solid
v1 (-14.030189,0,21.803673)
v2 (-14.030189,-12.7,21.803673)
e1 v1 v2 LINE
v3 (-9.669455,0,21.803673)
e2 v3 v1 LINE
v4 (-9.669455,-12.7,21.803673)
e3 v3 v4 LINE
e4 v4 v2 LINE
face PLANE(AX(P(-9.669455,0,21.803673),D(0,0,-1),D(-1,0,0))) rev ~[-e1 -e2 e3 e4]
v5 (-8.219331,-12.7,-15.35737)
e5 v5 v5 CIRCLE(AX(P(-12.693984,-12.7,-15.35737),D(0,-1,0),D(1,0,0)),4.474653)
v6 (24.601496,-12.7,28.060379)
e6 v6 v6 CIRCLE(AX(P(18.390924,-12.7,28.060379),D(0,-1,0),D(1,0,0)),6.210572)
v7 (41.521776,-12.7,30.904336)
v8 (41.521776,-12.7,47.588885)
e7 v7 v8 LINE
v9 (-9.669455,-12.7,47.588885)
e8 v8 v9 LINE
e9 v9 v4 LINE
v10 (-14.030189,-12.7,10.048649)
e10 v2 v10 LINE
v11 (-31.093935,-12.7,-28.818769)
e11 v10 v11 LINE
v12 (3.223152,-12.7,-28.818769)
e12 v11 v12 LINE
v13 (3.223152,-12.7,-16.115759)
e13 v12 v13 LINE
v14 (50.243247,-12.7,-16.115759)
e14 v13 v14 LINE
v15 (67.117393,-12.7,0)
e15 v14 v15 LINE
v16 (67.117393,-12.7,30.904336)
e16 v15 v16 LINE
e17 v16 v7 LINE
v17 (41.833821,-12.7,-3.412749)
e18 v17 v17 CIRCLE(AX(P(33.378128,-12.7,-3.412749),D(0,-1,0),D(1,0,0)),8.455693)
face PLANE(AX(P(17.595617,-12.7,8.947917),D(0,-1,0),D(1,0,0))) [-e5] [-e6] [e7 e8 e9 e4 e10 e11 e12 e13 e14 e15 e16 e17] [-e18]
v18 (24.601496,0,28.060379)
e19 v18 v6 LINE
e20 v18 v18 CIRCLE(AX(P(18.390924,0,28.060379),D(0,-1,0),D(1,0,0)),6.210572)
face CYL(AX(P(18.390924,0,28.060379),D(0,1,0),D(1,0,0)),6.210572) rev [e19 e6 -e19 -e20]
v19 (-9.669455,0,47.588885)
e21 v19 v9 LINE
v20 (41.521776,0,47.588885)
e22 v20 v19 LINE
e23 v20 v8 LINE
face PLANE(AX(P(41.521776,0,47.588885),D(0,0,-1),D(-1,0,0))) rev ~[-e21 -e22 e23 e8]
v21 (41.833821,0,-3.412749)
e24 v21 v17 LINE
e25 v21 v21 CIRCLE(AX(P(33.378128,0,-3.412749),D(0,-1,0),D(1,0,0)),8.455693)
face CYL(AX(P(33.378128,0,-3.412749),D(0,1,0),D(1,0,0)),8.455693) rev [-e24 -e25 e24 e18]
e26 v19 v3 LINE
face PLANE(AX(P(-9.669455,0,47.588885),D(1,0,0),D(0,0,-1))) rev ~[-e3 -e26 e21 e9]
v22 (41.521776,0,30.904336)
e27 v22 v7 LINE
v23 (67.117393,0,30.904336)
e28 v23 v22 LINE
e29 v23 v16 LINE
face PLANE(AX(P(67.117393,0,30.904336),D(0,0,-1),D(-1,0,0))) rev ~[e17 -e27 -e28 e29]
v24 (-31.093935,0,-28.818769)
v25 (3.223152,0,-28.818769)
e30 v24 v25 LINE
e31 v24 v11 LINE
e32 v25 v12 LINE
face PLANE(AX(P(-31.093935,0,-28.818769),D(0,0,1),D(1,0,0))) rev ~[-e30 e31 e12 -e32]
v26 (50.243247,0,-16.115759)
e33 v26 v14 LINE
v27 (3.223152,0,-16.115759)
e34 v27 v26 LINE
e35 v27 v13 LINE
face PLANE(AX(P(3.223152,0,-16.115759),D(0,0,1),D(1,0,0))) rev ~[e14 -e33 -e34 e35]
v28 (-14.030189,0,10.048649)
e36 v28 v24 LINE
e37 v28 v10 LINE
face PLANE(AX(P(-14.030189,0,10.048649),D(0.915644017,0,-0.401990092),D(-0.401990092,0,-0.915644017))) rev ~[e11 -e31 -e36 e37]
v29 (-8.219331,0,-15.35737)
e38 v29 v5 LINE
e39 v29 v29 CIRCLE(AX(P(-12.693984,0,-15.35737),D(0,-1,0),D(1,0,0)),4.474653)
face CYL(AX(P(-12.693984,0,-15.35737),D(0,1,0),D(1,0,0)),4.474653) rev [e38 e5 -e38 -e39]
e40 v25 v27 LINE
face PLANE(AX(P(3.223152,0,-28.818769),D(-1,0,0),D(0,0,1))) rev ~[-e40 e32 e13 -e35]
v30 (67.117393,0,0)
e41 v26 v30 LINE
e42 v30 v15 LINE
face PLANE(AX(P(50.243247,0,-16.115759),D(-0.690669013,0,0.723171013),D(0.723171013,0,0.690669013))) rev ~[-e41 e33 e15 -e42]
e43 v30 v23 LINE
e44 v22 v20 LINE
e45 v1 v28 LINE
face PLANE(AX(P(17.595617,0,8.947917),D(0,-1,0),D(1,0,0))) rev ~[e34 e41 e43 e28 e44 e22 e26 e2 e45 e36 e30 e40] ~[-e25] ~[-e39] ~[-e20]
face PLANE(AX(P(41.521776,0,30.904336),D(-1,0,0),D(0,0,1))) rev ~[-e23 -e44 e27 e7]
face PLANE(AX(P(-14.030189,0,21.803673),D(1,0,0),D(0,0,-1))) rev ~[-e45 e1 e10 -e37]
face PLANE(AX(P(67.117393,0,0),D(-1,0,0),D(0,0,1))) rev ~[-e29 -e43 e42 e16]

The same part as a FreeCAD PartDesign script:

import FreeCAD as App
import Part
import Sketcher
Q = App.Units.Quantity

doc = App.newDocument("Part")
body = doc.addObject("PartDesign::Body", "Body")

# Sketch on XZ plane
sketch1 = body.newObject("Sketcher::SketchObject", "Sketch")
sketch1.AttachmentSupport = (doc.getObject("XZ_Plane"), [""])
sketch1.MapMode = "FlatFace"
sketch1.addGeometry(Part.LineSegment(App.Vector(41.521776, 47.588885, 0), App.Vector(-9.669455, 47.588885, 0)), False)
sketch1.addGeometry(Part.LineSegment(App.Vector(-9.669455, 47.588885, 0), App.Vector(-9.669455, 21.803673, 0)), False)
sketch1.addGeometry(Part.LineSegment(App.Vector(-9.669455, 21.803673, 0), App.Vector(-14.030189, 21.803673, 0)), False)
sketch1.addGeometry(Part.LineSegment(App.Vector(-14.030189, 21.803673, 0), App.Vector(-14.030189, 10.048649, 0)), False)
sketch1.addGeometry(Part.LineSegment(App.Vector(-14.030189, 10.048649, 0), App.Vector(-31.093935, -28.818769, 0)), False)
sketch1.addGeometry(Part.LineSegment(App.Vector(-31.093935, -28.818769, 0), App.Vector(3.223152, -28.818769, 0)), False)
sketch1.addGeometry(Part.LineSegment(App.Vector(3.223152, -28.818769, 0), App.Vector(3.223152, -16.115759, 0)), False)
sketch1.addGeometry(Part.LineSegment(App.Vector(3.223152, -16.115759, 0), App.Vector(50.243247, -16.115759, 0)), False)
sketch1.addGeometry(Part.LineSegment(App.Vector(50.243247, -16.115759, 0), App.Vector(67.117393, 0, 0)), False)
sketch1.addGeometry(Part.LineSegment(App.Vector(67.117393, 0, 0), App.Vector(67.117393, 30.904336, 0)), False)
sketch1.addGeometry(Part.LineSegment(App.Vector(67.117393, 30.904336, 0), App.Vector(41.521776, 30.904336, 0)), False)
sketch1.addGeometry(Part.LineSegment(App.Vector(41.521776, 30.904336, 0), App.Vector(41.521776, 47.588885, 0)), False)
sketch1.addGeometry(Part.Circle(App.Vector(-12.693984, -15.35737, 0), App.Vector(0, 0, 1), 4.474653), False)
sketch1.addGeometry(Part.Circle(App.Vector(33.378128, -3.412749, 0), App.Vector(0, 0, 1), 8.455693), False)
sketch1.addGeometry(Part.Circle(App.Vector(18.390924, 28.060379, 0), App.Vector(0, 0, 1), 6.210572), False)
sketch1.addConstraint(Sketcher.Constraint("Coincident", 0, 2, 1, 1))
sketch1.addConstraint(Sketcher.Constraint("Coincident", 1, 2, 2, 1))
sketch1.addConstraint(Sketcher.Constraint("Coincident", 2, 2, 3, 1))
sketch1.addConstraint(Sketcher.Constraint("Coincident", 3, 2, 4, 1))
sketch1.addConstraint(Sketcher.Constraint("Coincident", 4, 2, 5, 1))
sketch1.addConstraint(Sketcher.Constraint("Coincident", 5, 2, 6, 1))
sketch1.addConstraint(Sketcher.Constraint("Coincident", 6, 2, 7, 1))
sketch1.addConstraint(Sketcher.Constraint("Coincident", 7, 2, 8, 1))
sketch1.addConstraint(Sketcher.Constraint("Coincident", 8, 2, 9, 1))
sketch1.addConstraint(Sketcher.Constraint("Coincident", 9, 2, 10, 1))
sketch1.addConstraint(Sketcher.Constraint("Coincident", 10, 2, 11, 1))
sketch1.addConstraint(Sketcher.Constraint("Coincident", 11, 2, 0, 1))
sketch1.addConstraint(Sketcher.Constraint("Horizontal", 0))
sketch1.addConstraint(Sketcher.Constraint("Vertical", 1))
sketch1.addConstraint(Sketcher.Constraint("Horizontal", 2))
sketch1.addConstraint(Sketcher.Constraint("Vertical", 3))
sketch1.addConstraint(Sketcher.Constraint("Horizontal", 5))
sketch1.addConstraint(Sketcher.Constraint("Vertical", 6))
sketch1.addConstraint(Sketcher.Constraint("Horizontal", 7))
sketch1.addConstraint(Sketcher.Constraint("Vertical", 9))
sketch1.addConstraint(Sketcher.Constraint("Horizontal", 10))
sketch1.addConstraint(Sketcher.Constraint("Vertical", 11))
sketch1.addConstraint(Sketcher.Constraint("PointOnObject", 8, 2, -1))
sketch1.addConstraint(Sketcher.Constraint("Diameter", 12, 8.949306))
sketch1.addConstraint(Sketcher.Constraint("Diameter", 13, 16.911386))
sketch1.addConstraint(Sketcher.Constraint("Diameter", 14, 12.421144))
sketch1.addConstraint(Sketcher.Constraint("DistanceX", 0, 2, 0, 1, 51.191231))
sketch1.addConstraint(Sketcher.Constraint("DistanceY", 1, 2, 1, 1, 25.785212))
sketch1.addConstraint(Sketcher.Constraint("DistanceY", 6, 1, 6, 2, 12.70301))
sketch1.addConstraint(Sketcher.Constraint("DistanceY", 11, 1, 11, 2, 16.684549))
sketch1.addConstraint(Sketcher.Constraint("DistanceY", 4, 2, 12, 3, 13.461399))
sketch1.addConstraint(Sketcher.Constraint("Distance", 8, 23.333549))
sketch1.addConstraint(Sketcher.Constraint("DistanceX", 2, 2, 2, 1, 4.360734))
sketch1.addConstraint(Sketcher.Constraint("DistanceX", 5, 1, 5, 2, 34.317087))
sketch1.addConstraint(Sketcher.Constraint("DistanceX", 7, 1, 7, 2, 47.020095))
sketch1.addConstraint(Sketcher.Constraint("DistanceX", 10, 2, 10, 1, 25.595617))
sketch1.addConstraint(Sketcher.Constraint("DistanceY", 3, 2, 3, 1, 11.755024))
sketch1.addConstraint(Sketcher.Constraint("DistanceY", 9, 1, 9, 2, 30.904336))
sketch1.addConstraint(Sketcher.Constraint("DistanceY", 12, 3, -1, 1, 15.35737))
sketch1.addConstraint(Sketcher.Constraint("DistanceY", 13, 3, -1, 1, 3.412749))
sketch1.addConstraint(Sketcher.Constraint("DistanceY", -1, 1, 14, 3, 28.060379))
sketch1.addConstraint(Sketcher.Constraint("DistanceX", 2, 2, -1, 1, 14.030189))
sketch1.addConstraint(Sketcher.Constraint("DistanceX", 12, 3, 13, 3, 46.072112))
sketch1.addConstraint(Sketcher.Constraint("DistanceX", 0, 2, 14, 3, 28.060379))
sketch1.addConstraint(Sketcher.Constraint("DistanceX", 12, 3, 0, 2, 3.024529))
pad1 = body.newObject("PartDesign::Pad", "Pad")
pad1.Profile = sketch1
pad1.Length = Q("0.5 in")

# Sketch on XZ plane
sketch2 = body.newObject("Sketcher::SketchObject", "Sketch001")
sketch2.AttachmentSupport = (doc.getObject("XZ_Plane"), [""])
sketch2.MapMode = "FlatFace"
sketch2.addGeometry(Part.LineSegment(App.Vector(41.521776, 47.588885, 0), App.Vector(-9.669455, 47.588885, 0)), False)
sketch2.addGeometry(Part.LineSegment(App.Vector(-9.669455, 47.588885, 0), App.Vector(-9.669455, 21.803673, 0)), False)
sketch2.addGeometry(Part.LineSegment(App.Vector(-9.669455, 21.803673, 0), App.Vector(-14.030189, 21.803673, 0)), False)
sketch2.addGeometry(Part.LineSegment(App.Vector(-14.030189, 21.803673, 0), App.Vector(-14.030189, 10.048649, 0)), False)
sketch2.addGeometry(Part.LineSegment(App.Vector(-14.030189, 10.048649, 0), App.Vector(-31.093935, -28.818769, 0)), False)
sketch2.addGeometry(Part.LineSegment(App.Vector(-31.093935, -28.818769, 0), App.Vector(3.223152, -28.818769, 0)), False)
sketch2.addGeometry(Part.LineSegment(App.Vector(3.223152, -28.818769, 0), App.Vector(3.223152, -16.115759, 0)), False)
sketch2.addGeometry(Part.LineSegment(App.Vector(3.223152, -16.115759, 0), App.Vector(50.243247, -16.115759, 0)), False)
sketch2.addGeometry(Part.LineSegment(App.Vector(50.243247, -16.115759, 0), App.Vector(67.117393, 0, 0)), False)
sketch2.addGeometry(Part.LineSegment(App.Vector(67.117393, 0, 0), App.Vector(67.117393, 30.904336, 0)), False)
sketch2.addGeometry(Part.LineSegment(App.Vector(67.117393, 30.904336, 0), App.Vector(41.521776, 30.904336, 0)), False)
sketch2.addGeometry(Part.LineSegment(App.Vector(41.521776, 30.904336, 0), App.Vector(41.521776, 47.588885, 0)), False)
sketch2.addGeometry(Part.Circle(App.Vector(-12.693984, -15.35737, 0), App.Vector(0, 0, 1), 4.474653), False)
sketch2.addGeometry(Part.Circle(App.Vector(33.378128, -3.412749, 0), App.Vector(0, 0, 1), 8.455693), False)
sketch2.addGeometry(Part.Circle(App.Vector(18.390924, 28.060379, 0), App.Vector(0, 0, 1), 6.210572), False)
sketch2.addConstraint(Sketcher.Constraint("Coincident", 0, 2, 1, 1))
sketch2.addConstraint(Sketcher.Constraint("Coincident", 1, 2, 2, 1))
sketch2.addConstraint(Sketcher.Constraint("Coincident", 2, 2, 3, 1))
sketch2.addConstraint(Sketcher.Constraint("Coincident", 3, 2, 4, 1))
sketch2.addConstraint(Sketcher.Constraint("Coincident", 4, 2, 5, 1))
sketch2.addConstraint(Sketcher.Constraint("Coincident", 5, 2, 6, 1))
sketch2.addConstraint(Sketcher.Constraint("Coincident", 6, 2, 7, 1))
sketch2.addConstraint(Sketcher.Constraint("Coincident", 7, 2, 8, 1))
sketch2.addConstraint(Sketcher.Constraint("Coincident", 8, 2, 9, 1))
sketch2.addConstraint(Sketcher.Constraint("Coincident", 9, 2, 10, 1))
sketch2.addConstraint(Sketcher.Constraint("Coincident", 10, 2, 11, 1))
sketch2.addConstraint(Sketcher.Constraint("Coincident", 11, 2, 0, 1))
sketch2.addConstraint(Sketcher.Constraint("Horizontal", 0))
sketch2.addConstraint(Sketcher.Constraint("Vertical", 1))
sketch2.addConstraint(Sketcher.Constraint("Horizontal", 2))
sketch2.addConstraint(Sketcher.Constraint("Vertical", 3))
sketch2.addConstraint(Sketcher.Constraint("Horizontal", 5))
sketch2.addConstraint(Sketcher.Constraint("Vertical", 6))
sketch2.addConstraint(Sketcher.Constraint("Horizontal", 7))
sketch2.addConstraint(Sketcher.Constraint("Vertical", 9))
sketch2.addConstraint(Sketcher.Constraint("Horizontal", 10))
sketch2.addConstraint(Sketcher.Constraint("Vertical", 11))
sketch2.addConstraint(Sketcher.Constraint("PointOnObject", 8, 2, -1))
sketch2.addConstraint(Sketcher.Constraint("Diameter", 12, 8.949306))
sketch2.addConstraint(Sketcher.Constraint("Diameter", 13, 16.911386))
sketch2.addConstraint(Sketcher.Constraint("Diameter", 14, 12.421144))
sketch2.addConstraint(Sketcher.Constraint("DistanceX", 0, 2, 0, 1, 51.191231))
sketch2.addConstraint(Sketcher.Constraint("DistanceY", 1, 2, 1, 1, 25.785212))
sketch2.addConstraint(Sketcher.Constraint("DistanceY", 6, 1, 6, 2, 12.70301))
sketch2.addConstraint(Sketcher.Constraint("DistanceY", 11, 1, 11, 2, 16.684549))
sketch2.addConstraint(Sketcher.Constraint("DistanceY", 4, 2, 12, 3, 13.461399))
sketch2.addConstraint(Sketcher.Constraint("Distance", 8, 23.333549))
sketch2.addConstraint(Sketcher.Constraint("DistanceX", 2, 2, 2, 1, 4.360734))
sketch2.addConstraint(Sketcher.Constraint("DistanceX", 5, 1, 5, 2, 34.317087))
sketch2.addConstraint(Sketcher.Constraint("DistanceX", 7, 1, 7, 2, 47.020095))
sketch2.addConstraint(Sketcher.Constraint("DistanceX", 10, 2, 10, 1, 25.595617))
sketch2.addConstraint(Sketcher.Constraint("DistanceY", 3, 2, 3, 1, 11.755024))
sketch2.addConstraint(Sketcher.Constraint("DistanceY", 9, 1, 9, 2, 30.904336))
sketch2.addConstraint(Sketcher.Constraint("DistanceY", 12, 3, -1, 1, 15.35737))
sketch2.addConstraint(Sketcher.Constraint("DistanceY", 13, 3, -1, 1, 3.412749))
sketch2.addConstraint(Sketcher.Constraint("DistanceY", -1, 1, 14, 3, 28.060379))
sketch2.addConstraint(Sketcher.Constraint("DistanceX", 2, 2, -1, 1, 14.030189))
sketch2.addConstraint(Sketcher.Constraint("DistanceX", 12, 3, 13, 3, 46.072112))
sketch2.addConstraint(Sketcher.Constraint("DistanceX", 0, 2, 14, 3, 28.060379))
sketch2.addConstraint(Sketcher.Constraint("DistanceX", 12, 3, 0, 2, 3.024529))
pad2 = body.newObject("PartDesign::Pad", "Pad001")
pad2.Profile = sketch2
pad2.Length = Q("0.5 in")

doc.recompute()
